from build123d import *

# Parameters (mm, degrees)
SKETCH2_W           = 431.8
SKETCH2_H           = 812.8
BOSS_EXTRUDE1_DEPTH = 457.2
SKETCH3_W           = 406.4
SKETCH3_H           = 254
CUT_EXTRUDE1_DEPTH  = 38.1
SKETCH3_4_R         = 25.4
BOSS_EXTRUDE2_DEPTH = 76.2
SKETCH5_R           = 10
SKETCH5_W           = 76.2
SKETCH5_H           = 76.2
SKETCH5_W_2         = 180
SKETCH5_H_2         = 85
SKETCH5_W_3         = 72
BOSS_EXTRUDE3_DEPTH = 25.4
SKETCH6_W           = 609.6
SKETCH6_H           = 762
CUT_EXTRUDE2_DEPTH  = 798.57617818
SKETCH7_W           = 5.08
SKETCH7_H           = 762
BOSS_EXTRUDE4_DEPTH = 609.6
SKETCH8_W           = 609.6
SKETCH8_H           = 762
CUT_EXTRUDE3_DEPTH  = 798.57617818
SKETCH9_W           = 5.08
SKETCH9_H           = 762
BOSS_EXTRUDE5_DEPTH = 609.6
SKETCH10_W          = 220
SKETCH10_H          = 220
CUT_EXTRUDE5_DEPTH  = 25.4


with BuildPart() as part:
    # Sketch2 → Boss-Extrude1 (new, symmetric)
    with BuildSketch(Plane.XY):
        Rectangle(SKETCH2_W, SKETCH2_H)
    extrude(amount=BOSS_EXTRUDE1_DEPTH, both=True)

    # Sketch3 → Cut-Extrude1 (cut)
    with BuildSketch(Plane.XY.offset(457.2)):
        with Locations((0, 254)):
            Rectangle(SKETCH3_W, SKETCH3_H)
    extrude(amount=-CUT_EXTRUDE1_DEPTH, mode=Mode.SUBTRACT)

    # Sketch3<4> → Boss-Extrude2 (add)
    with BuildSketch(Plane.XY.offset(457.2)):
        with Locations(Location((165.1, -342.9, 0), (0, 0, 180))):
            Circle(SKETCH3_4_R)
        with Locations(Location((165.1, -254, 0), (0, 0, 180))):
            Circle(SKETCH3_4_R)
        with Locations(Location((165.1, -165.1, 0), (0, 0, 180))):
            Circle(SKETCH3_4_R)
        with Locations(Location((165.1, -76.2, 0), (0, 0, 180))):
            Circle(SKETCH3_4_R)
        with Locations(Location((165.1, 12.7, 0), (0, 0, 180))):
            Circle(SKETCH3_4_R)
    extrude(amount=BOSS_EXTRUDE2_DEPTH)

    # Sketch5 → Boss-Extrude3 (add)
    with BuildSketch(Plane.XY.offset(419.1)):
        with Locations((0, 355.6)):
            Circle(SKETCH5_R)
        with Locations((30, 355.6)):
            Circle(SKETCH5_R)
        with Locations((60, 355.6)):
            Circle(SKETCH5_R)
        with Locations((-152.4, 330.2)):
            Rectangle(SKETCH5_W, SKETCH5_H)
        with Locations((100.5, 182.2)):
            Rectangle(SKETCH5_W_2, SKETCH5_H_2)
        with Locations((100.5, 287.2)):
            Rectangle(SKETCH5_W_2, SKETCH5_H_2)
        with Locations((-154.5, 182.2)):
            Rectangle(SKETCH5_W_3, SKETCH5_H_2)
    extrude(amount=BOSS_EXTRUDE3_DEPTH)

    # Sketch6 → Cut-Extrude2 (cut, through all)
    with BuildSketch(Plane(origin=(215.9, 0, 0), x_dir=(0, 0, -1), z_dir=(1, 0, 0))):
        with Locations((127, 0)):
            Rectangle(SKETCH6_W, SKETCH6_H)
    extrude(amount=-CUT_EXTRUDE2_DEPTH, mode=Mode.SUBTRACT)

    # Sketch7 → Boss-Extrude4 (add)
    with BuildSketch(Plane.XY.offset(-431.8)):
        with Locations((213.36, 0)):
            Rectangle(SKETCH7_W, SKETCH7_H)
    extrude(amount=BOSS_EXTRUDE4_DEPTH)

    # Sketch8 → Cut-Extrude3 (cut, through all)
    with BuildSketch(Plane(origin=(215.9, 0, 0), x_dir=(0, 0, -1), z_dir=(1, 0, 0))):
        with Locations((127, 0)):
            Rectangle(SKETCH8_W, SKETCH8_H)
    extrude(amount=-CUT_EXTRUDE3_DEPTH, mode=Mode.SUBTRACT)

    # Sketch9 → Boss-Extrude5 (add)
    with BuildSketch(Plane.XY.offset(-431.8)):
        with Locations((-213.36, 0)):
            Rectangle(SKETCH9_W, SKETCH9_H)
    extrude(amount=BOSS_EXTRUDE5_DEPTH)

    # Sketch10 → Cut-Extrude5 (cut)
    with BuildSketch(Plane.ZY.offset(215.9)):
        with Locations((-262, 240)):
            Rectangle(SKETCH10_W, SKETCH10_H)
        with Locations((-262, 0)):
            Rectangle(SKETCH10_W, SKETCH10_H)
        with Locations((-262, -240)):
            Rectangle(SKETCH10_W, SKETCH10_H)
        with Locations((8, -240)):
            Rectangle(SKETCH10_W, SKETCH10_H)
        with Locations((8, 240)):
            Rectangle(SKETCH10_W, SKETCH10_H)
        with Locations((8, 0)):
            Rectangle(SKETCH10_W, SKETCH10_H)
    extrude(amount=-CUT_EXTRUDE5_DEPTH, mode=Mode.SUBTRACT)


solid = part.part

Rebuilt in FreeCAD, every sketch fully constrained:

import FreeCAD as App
import Part
import Sketcher

V = App.Vector
Q = App.Units.Quantity


def add_polygon(sketch, points):
    """Adds a closed chain of lines whose ends are joined by coincident constraints."""
    first, n = sketch.GeometryCount, len(points)
    for a, b in zip(points, points[1:] + points[:1]):
        sketch.addGeometry(Part.LineSegment(App.Vector(*a, 0), App.Vector(*b, 0)), False)
    for i in range(n):
        sketch.addConstraint(Sketcher.Constraint("Coincident", first + i, 2, first + (i + 1) % n, 1))

doc = App.newDocument("Part")
body = doc.addObject("PartDesign::Body", "Body")

# Sketch on XY plane
sketch1 = body.newObject("Sketcher::SketchObject", "Sketch")
sketch1.AttachmentSupport = (doc.getObject("XY_Plane"), [""])
sketch1.MapMode = "FlatFace"
add_polygon(sketch1, [(-216, 406), (-216, -406), (216, -406), (216, 406)])  # lines 0-3
sketch1.addConstraint(Sketcher.Constraint("Vertical", 0))
sketch1.addConstraint(Sketcher.Constraint("Horizontal", 1))
sketch1.addConstraint(Sketcher.Constraint("Vertical", 2))
sketch1.addConstraint(Sketcher.Constraint("Horizontal", 3))
sketch1.addConstraint(Sketcher.Constraint("Symmetric", 0, 2, 2, 2, -1, 1))
sketch1.addConstraint(Sketcher.Constraint("DistanceX", 1, 1, 1, 2, Q("17 in")))
sketch1.addConstraint(Sketcher.Constraint("DistanceY", 0, 2, 0, 1, Q("32 in")))
pad1 = body.newObject("PartDesign::Pad", "Pad")
pad1.Profile = sketch1
pad1.Length = Q("36 in")
pad1.Midplane = True

# Sketch on XY plane
sketch2 = body.newObject("Sketcher::SketchObject", "Sketch001")
sketch2.AttachmentSupport = (doc.getObject("XY_Plane"), [""])
sketch2.MapMode = "FlatFace"
sketch2.AttachmentOffset = App.Placement(V(0, 0, 18 * 25.4), App.Rotation())
add_polygon(sketch2, [(-203, 381), (-203, 127), (203, 127), (203, 381)])  # lines 0-3
sketch2.addConstraint(Sketcher.Constraint("Vertical", 0))
sketch2.addConstraint(Sketcher.Constraint("Horizontal", 1))
sketch2.addConstraint(Sketcher.Constraint("Vertical", 2))
sketch2.addConstraint(Sketcher.Constraint("Horizontal", 3))
sketch2.addConstraint(Sketcher.Constraint("DistanceX", 1, 1, 1, 2, Q("16 in")))
sketch2.addConstraint(Sketcher.Constraint("DistanceY", 0, 2, 0, 1, Q("10 in")))
sketch2.addConstraint(Sketcher.Constraint("DistanceX", 0, 2, -1, 1, Q("8 in")))
sketch2.addConstraint(Sketcher.Constraint("DistanceY", -1, 1, 0, 2, Q("5 in")))
pocket1 = body.newObject("PartDesign::Pocket", "Pocket")
pocket1.Profile = sketch2
pocket1.Length = Q("1.5 in")

# Sketch on XY plane
sketch3 = body.newObject("Sketcher::SketchObject", "Sketch002")
sketch3.AttachmentSupport = (doc.getObject("XY_Plane"), [""])
sketch3.MapMode = "FlatFace"
sketch3.AttachmentOffset = App.Placement(V(0, 0, 18 * 25.4), App.Rotation())
sketch3.addGeometry(Part.Circle(V(165, -343, 0), V(0, 0, 1), 25), False)
sketch3.addGeometry(Part.Circle(V(165, -254, 0), V(0, 0, 1), 25), False)
sketch3.addGeometry(Part.Circle(V(165, -165, 0), V(0, 0, 1), 25), False)
sketch3.addGeometry(Part.Circle(V(165, -76, 0), V(0, 0, 1), 25), False)
sketch3.addGeometry(Part.Circle(V(165, 13, 0), V(0, 0, 1), 25), False)
sketch3.addConstraint(Sketcher.Constraint("Equal", 0, 1))
sketch3.addConstraint(Sketcher.Constraint("Equal", 1, 2))
sketch3.addConstraint(Sketcher.Constraint("Equal", 2, 3))
sketch3.addConstraint(Sketcher.Constraint("Equal", 3, 4))
sketch3.addConstraint(Sketcher.Constraint("Vertical", 0, 3, 1, 3))
sketch3.addConstraint(Sketcher.Constraint("Vertical", 1, 3, 2, 3))
sketch3.addConstraint(Sketcher.Constraint("Vertical", 2, 3, 3, 3))
sketch3.addConstraint(Sketcher.Constraint("Vertical", 3, 3, 4, 3))
sketch3.addConstraint(Sketcher.Constraint("Diameter", 0, Q("2 in")))
sketch3.addConstraint(Sketcher.Constraint("DistanceY", 1, 3, -1, 1, Q("10 in")))
sketch3.addConstraint(Sketcher.Constraint("DistanceY", 3, 3, -1, 1, Q("3 in")))
sketch3.addConstraint(Sketcher.Constraint("DistanceY", 0, 3, 2, 3, Q("7 in")))
sketch3.addConstraint(Sketcher.Constraint("DistanceY", 2, 3, 4, 3, Q("7 in")))
sketch3.addConstraint(Sketcher.Constraint("DistanceX", -1, 1, 0, 3, Q("6.5 in")))
sketch3.addConstraint(Sketcher.Constraint("DistanceY", 0, 3, -1, 1, Q("13.5 in")))
pad2 = body.newObject("PartDesign::Pad", "Pad001")
pad2.Profile = sketch3
pad2.Length = Q("3 in")

# Sketch on XY plane
sketch4 = body.newObject("Sketcher::SketchObject", "Sketch003")
sketch4.AttachmentSupport = (doc.getObject("XY_Plane"), [""])
sketch4.MapMode = "FlatFace"
sketch4.AttachmentOffset = App.Placement(V(0, 0, 16.5 * 25.4), App.Rotation())
sketch4.addGeometry(Part.Circle(V(0, 356, 0), V(0, 0, 1), 10), False)  # 0
sketch4.addGeometry(Part.Circle(V(30, 356, 0), V(0, 0, 1), 10), False)  # 1
sketch4.addGeometry(Part.Circle(V(60, 356, 0), V(0, 0, 1), 10), False)  # 2
add_polygon(sketch4, [(-190, 368), (-190, 292), (-114, 292), (-114, 368)])  # lines 3-6
add_polygon(sketch4, [(10, 225), (10, 140), (190, 140), (190, 225)])  # lines 7-10
add_polygon(sketch4, [(10, 330), (10, 245), (190, 245), (190, 330)])  # lines 11-14
add_polygon(sketch4, [(-190, 225), (-190, 140), (-118, 140), (-118, 225)])  # lines 15-18
sketch4.addConstraint(Sketcher.Constraint("Vertical", 3))
sketch4.addConstraint(Sketcher.Constraint("Horizontal", 4))
sketch4.addConstraint(Sketcher.Constraint("Vertical", 5))
sketch4.addConstraint(Sketcher.Constraint("Horizontal", 6))
sketch4.addConstraint(Sketcher.Constraint("Vertical", 7))
sketch4.addConstraint(Sketcher.Constraint("Horizontal", 8))
sketch4.addConstraint(Sketcher.Constraint("Vertical", 9))
sketch4.addConstraint(Sketcher.Constraint("Horizontal", 10))
sketch4.addConstraint(Sketcher.Constraint("Vertical", 11))
sketch4.addConstraint(Sketcher.Constraint("Horizontal", 12))
sketch4.addConstraint(Sketcher.Constraint("Vertical", 13))
sketch4.addConstraint(Sketcher.Constraint("Horizontal", 14))
sketch4.addConstraint(Sketcher.Constraint("Vertical", 15))
sketch4.addConstraint(Sketcher.Constraint("Horizontal", 16))
sketch4.addConstraint(Sketcher.Constraint("Vertical", 17))
sketch4.addConstraint(Sketcher.Constraint("Horizontal", 18))
sketch4.addConstraint(Sketcher.Constraint("Equal", 0, 1))
sketch4.addConstraint(Sketcher.Constraint("Equal", 1, 2))
sketch4.addConstraint(Sketcher.Constraint("Symmetric", 8, 2, 15, 2, -2))
sketch4.addConstraint(Sketcher.Constraint("PointOnObject", 0, 3, -2))
sketch4.addConstraint(Sketcher.Constraint("Horizontal", 0, 3, 1, 3))
sketch4.addConstraint(Sketcher.Constraint("Horizontal", 1, 3, 2, 3))
sketch4.addConstraint(Sketcher.Constraint("Horizontal", 10, 2, 17, 2))
sketch4.addConstraint(Sketcher.Constraint("Vertical", 10, 2, 11, 2))
sketch4.addConstraint(Sketcher.Constraint("Vertical", 9, 2, 12, 2))
sketch4.addConstraint(Sketcher.Constraint("Vertical", 6, 2, 15, 2))
sketch4.addConstraint(Sketcher.Constraint("Equal", 6, 3))
sketch4.addConstraint(Sketcher.Constraint("Equal", 9, 11))
sketch4.addConstraint(Sketcher.Constraint("DistanceX", 4, 1, 4, 2, Q("3 in")))
sketch4.addConstraint(Sketcher.Constraint("DistanceY", -1, 1, 0, 3, Q("14 in")))
sketch4.addConstraint(Sketcher.Constraint("DistanceY", 7, 2, 4, 2, Q("6 in")))
sketch4.addConstraint(Sketcher.Constraint("DistanceX", 4, 2, 8, 2, Q("12 in")))
sketch4.addConstraint(Sketcher.Constraint("DistanceY", -1, 1, 3, 2, Q("11.5 in")))
sketch4.addConstraint(Sketcher.Constraint("Diameter", 0, 20.0))
sketch4.addConstraint(Sketcher.Constraint("DistanceX", 8, 1, 8, 2, 180.0))
sketch4.addConstraint(Sketcher.Constraint("DistanceX", 16, 1, 16, 2, 72.0))
sketch4.addConstraint(Sketcher.Constraint("DistanceY", 7, 2, 7, 1, 85.0))
sketch4.addConstraint(Sketcher.Constraint("DistanceX", -1, 1, 1, 3, 30.0))
sketch4.addConstraint(Sketcher.Constraint("DistanceX", -1, 1, 2, 3, 60.0))
sketch4.addConstraint(Sketcher.Constraint("DistanceY", -1, 1, 11, 2, 244.7))
pad3 = body.newObject("PartDesign::Pad", "Pad002")
pad3.Profile = sketch4
pad3.Length = Q("1 in")

# Sketch on YZ plane
sketch5 = body.newObject("Sketcher::SketchObject", "Sketch004")
sketch5.AttachmentSupport = (doc.getObject("YZ_Plane"), [""])
sketch5.MapMode = "FlatFace"
sketch5.AttachmentOffset = App.Placement(V(0, 0, 8.5 * 25.4), App.Rotation())
add_polygon(sketch5, [(381, 178), (-381, 178), (-381, -432), (381, -432)])  # lines 0-3
sketch5.addConstraint(Sketcher.Constraint("Horizontal", 0))
sketch5.addConstraint(Sketcher.Constraint("Vertical", 1))
sketch5.addConstraint(Sketcher.Constraint("Horizontal", 2))
sketch5.addConstraint(Sketcher.Constraint("Vertical", 3))
sketch5.addConstraint(Sketcher.Constraint("DistanceX", 0, 2, 0, 1, Q("30 in")))
sketch5.addConstraint(Sketcher.Constraint("DistanceY", 1, 2, 1, 1, Q("24 in")))
sketch5.addConstraint(Sketcher.Constraint("DistanceX", 0, 2, -1, 1, Q("15 in")))
sketch5.addConstraint(Sketcher.Constraint("DistanceY", -1, 1, 0, 2, Q("7 in")))
pocket2 = body.newObject("PartDesign::Pocket", "Pocket001")
pocket2.Profile = sketch5
pocket2.Type = "ThroughAll"

# Sketch on XY plane
sketch6 = body.newObject("Sketcher::SketchObject", "Sketch005")
sketch6.AttachmentSupport = (doc.getObject("XY_Plane"), [""])
sketch6.MapMode = "FlatFace"
sketch6.AttachmentOffset = App.Placement(V(0, 0, -17 * 25.4), App.Rotation())
add_polygon(sketch6, [(211, 381), (211, -381), (216, -381), (216, 381)])  # lines 0-3
sketch6.addConstraint(Sketcher.Constraint("Vertical", 0))
sketch6.addConstraint(Sketcher.Constraint("Horizontal", 1))
sketch6.addConstraint(Sketcher.Constraint("Vertical", 2))
sketch6.addConstraint(Sketcher.Constraint("Horizontal", 3))
sketch6.addConstraint(Sketcher.Constraint("DistanceY", 0, 2, 0, 1, Q("30 in")))
sketch6.addConstraint(Sketcher.Constraint("DistanceX", 1, 1, 1, 2, Q("0.2 in")))
sketch6.addConstraint(Sketcher.Constraint("DistanceY", 0, 2, -1, 1, Q("15 in")))
sketch6.addConstraint(Sketcher.Constraint("DistanceX", -1, 1, 0, 2, Q("8.3 in")))
pad4 = body.newObject("PartDesign::Pad", "Pad003")
pad4.Profile = sketch6
pad4.Length = Q("24 in")

# Sketch on YZ plane
sketch7 = body.newObject("Sketcher::SketchObject", "Sketch006")
sketch7.AttachmentSupport = (doc.getObject("YZ_Plane"), [""])
sketch7.MapMode = "FlatFace"
sketch7.AttachmentOffset = App.Placement(V(0, 0, 8.5 * 25.4), App.Rotation())
add_polygon(sketch7, [(381, 178), (-381, 178), (-381, -432), (381, -432)])  # lines 0-3
sketch7.addConstraint(Sketcher.Constraint("Horizontal", 0))
sketch7.addConstraint(Sketcher.Constraint("Vertical", 1))
sketch7.addConstraint(Sketcher.Constraint("Horizontal", 2))
sketch7.addConstraint(Sketcher.Constraint("Vertical", 3))
sketch7.addConstraint(Sketcher.Constraint("DistanceX", 0, 2, 0, 1, Q("30 in")))
sketch7.addConstraint(Sketcher.Constraint("DistanceY", 1, 2, 1, 1, Q("24 in")))
sketch7.addConstraint(Sketcher.Constraint("DistanceX", 0, 2, -1, 1, Q("15 in")))
sketch7.addConstraint(Sketcher.Constraint("DistanceY", -1, 1, 0, 2, Q("7 in")))
pocket3 = body.newObject("PartDesign::Pocket", "Pocket002")
pocket3.Profile = sketch7
pocket3.Type = "ThroughAll"

# Sketch on XY plane
sketch8 = body.newObject("Sketcher::SketchObject", "Sketch007")
sketch8.AttachmentSupport = (doc.getObject("XY_Plane"), [""])
sketch8.MapMode = "FlatFace"
sketch8.AttachmentOffset = App.Placement(V(0, 0, -17 * 25.4), App.Rotation())
add_polygon(sketch8, [(-216, 381), (-216, -381), (-211, -381), (-211, 381)])  # lines 0-3
sketch8.addConstraint(Sketcher.Constraint("Vertical", 0))
sketch8.addConstraint(Sketcher.Constraint("Horizontal", 1))
sketch8.addConstraint(Sketcher.Constraint("Vertical", 2))
sketch8.addConstraint(Sketcher.Constraint("Horizontal", 3))
sketch8.addConstraint(Sketcher.Constraint("DistanceY", 0, 2, 0, 1, Q("30 in")))
sketch8.addConstraint(Sketcher.Constraint("DistanceX", 1, 1, 1, 2, Q("0.2 in")))
sketch8.addConstraint(Sketcher.Constraint("DistanceY", 0, 2, -1, 1, Q("15 in")))
sketch8.addConstraint(Sketcher.Constraint("DistanceX", 0, 2, -1, 1, Q("8.5 in")))
pad5 = body.newObject("PartDesign::Pad", "Pad004")
pad5.Profile = sketch8
pad5.Length = Q("24 in")

# Sketch on YZ plane
sketch9 = body.newObject("Sketcher::SketchObject", "Sketch008")
sketch9.AttachmentSupport = (doc.getObject("YZ_Plane"), [""])
sketch9.MapMode = "FlatFace"
sketch9.AttachmentOffset = App.Placement(V(0, 0, -8.5 * 25.4), App.Rotation())
add_polygon(sketch9, [(350, -372), (130, -372), (130, -152), (350, -152)])  # lines 0-3
add_polygon(sketch9, [(110, -372), (-110, -372), (-110, -152), (110, -152)])  # lines 4-7
add_polygon(sketch9, [(-130, -372), (-350, -372), (-350, -152), (-130, -152)])  # lines 8-11
add_polygon(sketch9, [(-130, -102), (-350, -102), (-350, 118), (-130, 118)])  # lines 12-15
add_polygon(sketch9, [(350, -102), (130, -102), (130, 118), (350, 118)])  # lines 16-19
add_polygon(sketch9, [(110, -102), (-110, -102), (-110, 118), (110, 118)])  # lines 20-23
sketch9.addConstraint(Sketcher.Constraint("Horizontal", 0))
sketch9.addConstraint(Sketcher.Constraint("Vertical", 1))
sketch9.addConstraint(Sketcher.Constraint("Horizontal", 2))
sketch9.addConstraint(Sketcher.Constraint("Vertical", 3))
sketch9.addConstraint(Sketcher.Constraint("Horizontal", 4))
sketch9.addConstraint(Sketcher.Constraint("Vertical", 5))
sketch9.addConstraint(Sketcher.Constraint("Horizontal", 6))
sketch9.addConstraint(Sketcher.Constraint("Vertical", 7))
sketch9.addConstraint(Sketcher.Constraint("Horizontal", 8))
sketch9.addConstraint(Sketcher.Constraint("Vertical", 9))
sketch9.addConstraint(Sketcher.Constraint("Horizontal", 10))
sketch9.addConstraint(Sketcher.Constraint("Vertical", 11))
sketch9.addConstraint(Sketcher.Constraint("Horizontal", 12))
sketch9.addConstraint(Sketcher.Constraint("Vertical", 13))
sketch9.addConstraint(Sketcher.Constraint("Horizontal", 14))
sketch9.addConstraint(Sketcher.Constraint("Vertical", 15))
sketch9.addConstraint(Sketcher.Constraint("Horizontal", 16))
sketch9.addConstraint(Sketcher.Constraint("Vertical", 17))
sketch9.addConstraint(Sketcher.Constraint("Horizontal", 18))
sketch9.addConstraint(Sketcher.Constraint("Vertical", 19))
sketch9.addConstraint(Sketcher.Constraint("Horizontal", 20))
sketch9.addConstraint(Sketcher.Constraint("Vertical", 21))
sketch9.addConstraint(Sketcher.Constraint("Horizontal", 22))
sketch9.addConstraint(Sketcher.Constraint("Vertical", 23))
sketch9.addConstraint(Sketcher.Constraint("Symmetric", 3, 2, 8, 2, -2))
sketch9.addConstraint(Sketcher.Constraint("Symmetric", 1, 2, 10, 2, -2))
sketch9.addConstraint(Sketcher.Constraint("Symmetric", 15, 2, 16, 2, -2))
sketch9.addConstraint(Sketcher.Constraint("Symmetric", 13, 2, 18, 2, -2))
sketch9.addConstraint(Sketcher.Constraint("Horizontal", 3, 2, 4, 2))
sketch9.addConstraint(Sketcher.Constraint("Horizontal", 2, 2, 5, 2))
sketch9.addConstraint(Sketcher.Constraint("Horizontal", 19, 2, 20, 2))
sketch9.addConstraint(Sketcher.Constraint("Horizontal", 18, 2, 21, 2))
sketch9.addConstraint(Sketcher.Constraint("Vertical", 9, 2, 12, 2))
sketch9.addConstraint(Sketcher.Constraint("Vertical", 11, 2, 14, 2))
sketch9.addConstraint(Sketcher.Constraint("Vertical", 5, 2, 20, 2))
sketch9.addConstraint(Sketcher.Constraint("Vertical", 7, 2, 22, 2))
sketch9.addConstraint(Sketcher.Constraint("Equal", 2, 4))
sketch9.addConstraint(Sketcher.Constraint("Equal", 22, 1))
sketch9.addConstraint(Sketcher.Constraint("Equal", 11, 13))
sketch9.addConstraint(Sketcher.Constraint("DistanceX", 0, 2, 0, 1, 220.0))
sketch9.addConstraint(Sketcher.Constraint("DistanceX", -1, 1, 0, 2, 130.0))
sketch9.addConstraint(Sketcher.Constraint("DistanceY", 0, 2, -1, 1, 372.0))
sketch9.addConstraint(Sketcher.Constraint("DistanceX", 4, 2, -1, 1, 110.0))
sketch9.addConstraint(Sketcher.Constraint("DistanceY", 12, 2, -1, 1, 102.0))
pocket4 = body.newObject("PartDesign::Pocket", "Pocket003")
pocket4.Profile = sketch9
pocket4.Length = Q("1 in")
pocket4.Reversed = True

doc.recompute()
